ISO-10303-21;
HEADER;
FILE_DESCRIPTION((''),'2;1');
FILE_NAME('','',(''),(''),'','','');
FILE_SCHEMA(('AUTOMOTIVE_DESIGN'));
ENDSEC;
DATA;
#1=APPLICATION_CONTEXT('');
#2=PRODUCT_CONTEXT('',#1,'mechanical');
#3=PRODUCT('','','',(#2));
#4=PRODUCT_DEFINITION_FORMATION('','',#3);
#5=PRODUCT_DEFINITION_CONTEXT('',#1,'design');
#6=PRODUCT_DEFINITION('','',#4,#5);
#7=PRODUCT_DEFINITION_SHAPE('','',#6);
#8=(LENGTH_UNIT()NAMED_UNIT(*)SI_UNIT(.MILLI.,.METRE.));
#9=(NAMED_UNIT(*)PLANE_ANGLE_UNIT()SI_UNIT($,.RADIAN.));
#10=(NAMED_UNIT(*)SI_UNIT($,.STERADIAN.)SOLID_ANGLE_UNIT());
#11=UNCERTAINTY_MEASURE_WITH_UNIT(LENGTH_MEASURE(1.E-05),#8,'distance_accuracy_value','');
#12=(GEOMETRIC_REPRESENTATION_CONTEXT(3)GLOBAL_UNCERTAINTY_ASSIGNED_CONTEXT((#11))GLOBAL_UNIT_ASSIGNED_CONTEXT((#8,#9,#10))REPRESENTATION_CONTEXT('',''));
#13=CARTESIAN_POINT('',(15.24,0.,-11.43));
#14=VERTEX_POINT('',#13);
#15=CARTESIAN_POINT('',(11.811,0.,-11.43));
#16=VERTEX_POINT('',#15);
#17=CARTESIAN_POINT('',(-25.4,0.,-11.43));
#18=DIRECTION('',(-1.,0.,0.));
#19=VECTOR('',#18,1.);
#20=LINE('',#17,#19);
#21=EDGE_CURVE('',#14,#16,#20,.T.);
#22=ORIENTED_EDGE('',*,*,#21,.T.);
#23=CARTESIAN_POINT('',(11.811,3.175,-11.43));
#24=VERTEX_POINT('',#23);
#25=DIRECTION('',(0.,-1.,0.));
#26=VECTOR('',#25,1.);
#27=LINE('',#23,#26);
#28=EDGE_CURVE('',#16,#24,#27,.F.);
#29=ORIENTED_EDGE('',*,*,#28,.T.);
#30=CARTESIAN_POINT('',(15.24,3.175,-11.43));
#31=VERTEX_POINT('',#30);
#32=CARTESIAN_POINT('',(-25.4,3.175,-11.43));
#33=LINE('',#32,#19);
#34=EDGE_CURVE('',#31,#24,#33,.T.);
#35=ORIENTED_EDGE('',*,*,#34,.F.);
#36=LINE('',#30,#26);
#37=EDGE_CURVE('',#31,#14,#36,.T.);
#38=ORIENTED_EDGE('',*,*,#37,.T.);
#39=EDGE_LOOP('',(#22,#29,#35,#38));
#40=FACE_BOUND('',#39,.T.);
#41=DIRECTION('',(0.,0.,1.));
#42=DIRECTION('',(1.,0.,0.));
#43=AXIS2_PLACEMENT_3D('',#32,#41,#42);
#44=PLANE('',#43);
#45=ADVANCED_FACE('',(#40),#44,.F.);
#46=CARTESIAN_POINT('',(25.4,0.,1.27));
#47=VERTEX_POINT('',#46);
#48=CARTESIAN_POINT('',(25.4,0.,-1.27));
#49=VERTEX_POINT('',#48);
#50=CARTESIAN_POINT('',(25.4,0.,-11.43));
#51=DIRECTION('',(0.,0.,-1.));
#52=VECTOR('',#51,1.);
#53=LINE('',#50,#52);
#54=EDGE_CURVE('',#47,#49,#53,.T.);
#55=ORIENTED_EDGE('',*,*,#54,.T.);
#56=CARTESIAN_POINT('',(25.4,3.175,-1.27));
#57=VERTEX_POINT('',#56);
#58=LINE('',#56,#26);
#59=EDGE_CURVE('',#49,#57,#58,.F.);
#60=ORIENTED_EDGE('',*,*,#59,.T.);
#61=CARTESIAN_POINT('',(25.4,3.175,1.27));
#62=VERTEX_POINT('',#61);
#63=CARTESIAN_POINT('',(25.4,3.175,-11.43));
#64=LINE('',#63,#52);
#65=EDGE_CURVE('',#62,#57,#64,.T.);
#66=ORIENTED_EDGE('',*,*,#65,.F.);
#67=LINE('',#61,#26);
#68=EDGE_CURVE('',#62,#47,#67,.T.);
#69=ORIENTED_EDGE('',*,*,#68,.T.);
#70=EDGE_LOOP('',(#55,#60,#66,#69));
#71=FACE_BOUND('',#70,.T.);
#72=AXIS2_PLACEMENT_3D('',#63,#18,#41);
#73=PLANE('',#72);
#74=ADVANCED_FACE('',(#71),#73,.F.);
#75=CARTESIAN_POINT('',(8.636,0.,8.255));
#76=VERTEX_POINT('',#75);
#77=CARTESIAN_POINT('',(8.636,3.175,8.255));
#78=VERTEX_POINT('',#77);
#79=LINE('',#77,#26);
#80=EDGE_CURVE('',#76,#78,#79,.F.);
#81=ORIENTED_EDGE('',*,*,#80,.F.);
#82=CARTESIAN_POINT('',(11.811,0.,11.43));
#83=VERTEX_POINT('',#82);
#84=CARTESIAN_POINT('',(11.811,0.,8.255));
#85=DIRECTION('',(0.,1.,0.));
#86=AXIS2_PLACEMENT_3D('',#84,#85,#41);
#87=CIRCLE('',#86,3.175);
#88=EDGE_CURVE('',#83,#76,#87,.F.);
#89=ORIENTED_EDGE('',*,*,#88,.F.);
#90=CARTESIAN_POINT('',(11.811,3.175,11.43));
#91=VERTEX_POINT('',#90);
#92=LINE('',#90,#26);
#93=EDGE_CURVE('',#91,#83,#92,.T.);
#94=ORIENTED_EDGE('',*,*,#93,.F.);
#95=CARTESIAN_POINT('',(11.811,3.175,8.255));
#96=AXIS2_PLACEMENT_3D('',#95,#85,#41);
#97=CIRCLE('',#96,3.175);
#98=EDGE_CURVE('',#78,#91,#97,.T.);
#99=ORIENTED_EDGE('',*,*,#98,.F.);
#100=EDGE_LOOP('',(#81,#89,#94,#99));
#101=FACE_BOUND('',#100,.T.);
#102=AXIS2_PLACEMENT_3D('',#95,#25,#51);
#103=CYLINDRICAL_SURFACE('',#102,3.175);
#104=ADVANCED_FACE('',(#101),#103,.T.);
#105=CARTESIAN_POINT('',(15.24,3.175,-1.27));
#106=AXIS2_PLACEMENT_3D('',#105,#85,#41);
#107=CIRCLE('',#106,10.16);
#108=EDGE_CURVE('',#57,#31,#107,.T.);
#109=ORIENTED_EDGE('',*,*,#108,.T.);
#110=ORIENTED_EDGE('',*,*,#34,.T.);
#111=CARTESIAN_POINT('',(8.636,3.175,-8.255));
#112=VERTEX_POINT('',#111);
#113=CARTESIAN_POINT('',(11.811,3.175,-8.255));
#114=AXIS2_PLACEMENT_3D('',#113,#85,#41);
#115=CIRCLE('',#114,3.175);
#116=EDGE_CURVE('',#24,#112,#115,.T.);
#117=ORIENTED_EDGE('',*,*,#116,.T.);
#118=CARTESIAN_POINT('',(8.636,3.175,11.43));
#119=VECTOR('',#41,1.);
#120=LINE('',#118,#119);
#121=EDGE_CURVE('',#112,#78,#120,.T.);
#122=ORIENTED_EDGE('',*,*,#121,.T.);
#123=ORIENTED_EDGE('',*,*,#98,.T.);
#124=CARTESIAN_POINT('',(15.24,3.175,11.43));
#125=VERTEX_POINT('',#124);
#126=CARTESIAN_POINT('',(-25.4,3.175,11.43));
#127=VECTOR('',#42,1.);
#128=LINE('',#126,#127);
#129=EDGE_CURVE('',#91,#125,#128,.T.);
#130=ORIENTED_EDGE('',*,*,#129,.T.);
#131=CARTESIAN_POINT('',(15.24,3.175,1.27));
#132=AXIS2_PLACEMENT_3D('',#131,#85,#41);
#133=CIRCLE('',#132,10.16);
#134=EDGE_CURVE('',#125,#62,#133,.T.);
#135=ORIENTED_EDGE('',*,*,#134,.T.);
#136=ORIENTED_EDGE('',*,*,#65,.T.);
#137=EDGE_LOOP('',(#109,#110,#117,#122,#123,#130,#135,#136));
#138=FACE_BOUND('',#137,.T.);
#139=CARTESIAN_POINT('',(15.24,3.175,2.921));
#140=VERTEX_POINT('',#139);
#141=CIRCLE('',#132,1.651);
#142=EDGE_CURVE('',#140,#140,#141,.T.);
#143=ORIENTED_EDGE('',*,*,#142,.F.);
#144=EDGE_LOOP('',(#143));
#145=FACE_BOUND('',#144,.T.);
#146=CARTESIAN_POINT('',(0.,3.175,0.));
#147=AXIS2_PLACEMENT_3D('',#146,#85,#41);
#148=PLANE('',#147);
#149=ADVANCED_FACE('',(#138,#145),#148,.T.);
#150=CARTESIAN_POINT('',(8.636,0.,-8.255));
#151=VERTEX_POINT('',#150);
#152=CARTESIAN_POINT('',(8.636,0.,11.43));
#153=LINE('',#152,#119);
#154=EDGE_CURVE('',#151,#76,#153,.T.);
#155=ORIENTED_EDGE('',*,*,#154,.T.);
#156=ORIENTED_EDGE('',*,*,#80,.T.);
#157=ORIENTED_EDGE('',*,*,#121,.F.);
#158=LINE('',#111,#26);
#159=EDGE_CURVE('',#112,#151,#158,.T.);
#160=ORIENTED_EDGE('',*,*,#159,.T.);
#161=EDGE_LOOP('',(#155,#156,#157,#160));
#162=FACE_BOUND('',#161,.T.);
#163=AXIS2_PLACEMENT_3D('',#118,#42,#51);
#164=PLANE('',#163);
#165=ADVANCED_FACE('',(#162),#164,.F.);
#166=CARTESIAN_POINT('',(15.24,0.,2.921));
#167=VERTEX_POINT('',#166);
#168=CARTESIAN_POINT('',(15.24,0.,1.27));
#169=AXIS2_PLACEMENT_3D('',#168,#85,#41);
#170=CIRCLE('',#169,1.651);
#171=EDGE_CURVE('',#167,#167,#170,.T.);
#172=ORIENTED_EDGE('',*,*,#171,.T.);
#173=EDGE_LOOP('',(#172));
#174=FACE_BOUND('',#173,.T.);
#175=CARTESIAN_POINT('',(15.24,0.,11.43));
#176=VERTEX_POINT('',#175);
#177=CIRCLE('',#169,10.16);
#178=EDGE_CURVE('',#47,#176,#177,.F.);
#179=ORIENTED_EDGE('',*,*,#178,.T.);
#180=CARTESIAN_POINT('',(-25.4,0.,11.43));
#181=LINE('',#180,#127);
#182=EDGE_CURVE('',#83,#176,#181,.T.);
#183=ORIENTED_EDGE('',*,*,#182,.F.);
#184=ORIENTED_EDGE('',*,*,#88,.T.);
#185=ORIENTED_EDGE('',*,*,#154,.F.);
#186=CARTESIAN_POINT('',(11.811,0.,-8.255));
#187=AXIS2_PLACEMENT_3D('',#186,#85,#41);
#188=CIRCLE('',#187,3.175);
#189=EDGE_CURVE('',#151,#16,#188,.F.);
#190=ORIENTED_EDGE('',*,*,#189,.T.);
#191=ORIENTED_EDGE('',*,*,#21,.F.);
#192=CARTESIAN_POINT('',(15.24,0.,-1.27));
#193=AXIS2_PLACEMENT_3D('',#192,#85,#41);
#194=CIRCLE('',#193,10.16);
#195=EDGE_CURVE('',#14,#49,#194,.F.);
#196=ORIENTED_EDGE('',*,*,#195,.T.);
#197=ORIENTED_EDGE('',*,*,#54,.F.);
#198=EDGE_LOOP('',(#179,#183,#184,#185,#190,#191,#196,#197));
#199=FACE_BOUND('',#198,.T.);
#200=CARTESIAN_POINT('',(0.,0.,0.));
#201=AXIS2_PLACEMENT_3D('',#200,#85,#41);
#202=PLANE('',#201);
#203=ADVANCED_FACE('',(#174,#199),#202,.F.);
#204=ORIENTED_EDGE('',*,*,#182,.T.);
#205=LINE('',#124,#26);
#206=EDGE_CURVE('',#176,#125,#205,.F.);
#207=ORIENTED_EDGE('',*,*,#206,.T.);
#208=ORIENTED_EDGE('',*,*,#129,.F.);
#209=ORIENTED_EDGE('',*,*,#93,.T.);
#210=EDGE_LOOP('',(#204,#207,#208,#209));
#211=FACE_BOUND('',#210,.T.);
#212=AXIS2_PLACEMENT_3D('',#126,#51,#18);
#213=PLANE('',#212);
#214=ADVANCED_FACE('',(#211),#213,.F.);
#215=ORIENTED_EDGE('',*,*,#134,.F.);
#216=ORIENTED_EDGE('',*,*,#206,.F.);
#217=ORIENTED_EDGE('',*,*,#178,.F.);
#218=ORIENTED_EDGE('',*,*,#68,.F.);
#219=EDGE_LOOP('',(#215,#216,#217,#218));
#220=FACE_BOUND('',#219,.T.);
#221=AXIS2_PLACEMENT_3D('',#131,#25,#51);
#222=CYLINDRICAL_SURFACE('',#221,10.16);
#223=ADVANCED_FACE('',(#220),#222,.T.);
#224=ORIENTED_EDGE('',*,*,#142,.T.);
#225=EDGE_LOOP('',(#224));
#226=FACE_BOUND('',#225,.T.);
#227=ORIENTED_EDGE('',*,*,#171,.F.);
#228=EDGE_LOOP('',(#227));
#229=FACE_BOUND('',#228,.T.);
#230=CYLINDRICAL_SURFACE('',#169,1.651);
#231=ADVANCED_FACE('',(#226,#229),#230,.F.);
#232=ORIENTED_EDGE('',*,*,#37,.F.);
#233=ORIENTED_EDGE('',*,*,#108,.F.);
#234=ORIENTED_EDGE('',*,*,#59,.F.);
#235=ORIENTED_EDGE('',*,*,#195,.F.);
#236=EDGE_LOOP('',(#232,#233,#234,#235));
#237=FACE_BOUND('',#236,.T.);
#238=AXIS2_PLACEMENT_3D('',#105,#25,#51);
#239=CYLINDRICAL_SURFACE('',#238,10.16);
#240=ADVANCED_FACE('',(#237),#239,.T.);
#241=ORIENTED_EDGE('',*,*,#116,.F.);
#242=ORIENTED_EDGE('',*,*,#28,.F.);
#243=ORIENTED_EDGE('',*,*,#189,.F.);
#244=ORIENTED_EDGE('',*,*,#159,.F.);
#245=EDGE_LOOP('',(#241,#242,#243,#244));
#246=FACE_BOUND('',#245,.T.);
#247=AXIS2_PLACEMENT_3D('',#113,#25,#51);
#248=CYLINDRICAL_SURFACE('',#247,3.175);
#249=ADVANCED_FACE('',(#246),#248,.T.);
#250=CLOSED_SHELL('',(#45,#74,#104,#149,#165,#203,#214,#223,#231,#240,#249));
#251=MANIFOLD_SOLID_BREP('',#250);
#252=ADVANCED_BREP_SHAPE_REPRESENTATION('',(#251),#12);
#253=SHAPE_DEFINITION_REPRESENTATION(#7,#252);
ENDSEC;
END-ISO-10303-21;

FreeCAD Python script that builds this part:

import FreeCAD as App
import Part
import Sketcher

V = App.Vector
Q = App.Units.Quantity


def edges_at(feature, points):
    """Names of the edges that pass closest to the given points."""
    edges = feature.Shape.Edges
    near = lambda p: min(range(len(edges)), key=lambda i: edges[i].distToShape(Part.Vertex(*p))[0])
    return sorted({f"Edge{near(p) + 1}" for p in points})


def add_polygon(sketch, points):
    """Adds a closed chain of lines whose ends are joined by coincident constraints."""
    first, n = sketch.GeometryCount, len(points)
    for a, b in zip(points, points[1:] + points[:1]):
        sketch.addGeometry(Part.LineSegment(App.Vector(*a, 0), App.Vector(*b, 0)), False)
    for i in range(n):
        sketch.addConstraint(Sketcher.Constraint("Coincident", first + i, 2, first + (i + 1) % n, 1))

doc = App.newDocument("Part")
body = doc.addObject("PartDesign::Body", "Body")

# Sketch on XZ plane
sketch1 = body.newObject("Sketcher::SketchObject", "Sketch")
sketch1.AttachmentSupport = (doc.getObject("XZ_Plane"), [""])
sketch1.MapMode = "FlatFace"
add_polygon(sketch1, [(-25, -11), (-25, 11), (25, 11), (25, -11)])  # lines 0-3
sketch1.addConstraint([
    Sketcher.Constraint("Vertical", 0),
    Sketcher.Constraint("Horizontal", 1),
    Sketcher.Constraint("Vertical", 2),
    Sketcher.Constraint("Horizontal", 3),
    Sketcher.Constraint("Symmetric", 0, 2, 2, 2, -1, 1),
    Sketcher.Constraint("DistanceX", 1, 1, 1, 2, Q("2 in")),
    Sketcher.Constraint("DistanceY", 0, 1, 0, 2, Q("0.9 in")),
])
pad1 = body.newObject("PartDesign::Pad", "Pad")
pad1.Profile = sketch1
pad1.Length = Q("0.125 in")
pad1.Reversed = True
doc.recompute()

fillet = body.newObject("PartDesign::Fillet", "Fillet")
fillet.Base = (pad1, edges_at(pad1, [(25.4, 1.587, 11.43), (-25.4, 1.587, 11.43)]))
fillet.Radius = Q("0.4 in")

# Sketch on XZ plane
sketch2 = body.newObject("Sketcher::SketchObject", "Sketch001")
sketch2.AttachmentSupport = (doc.getObject("XZ_Plane"), [""])
sketch2.MapMode = "FlatFace"
sketch2.AttachmentOffset = App.Placement(V(0, 0, -0.125 * 25.4), App.Rotation())
sketch2.addGeometry([
    Part.Circle(V(15.2, 1.3, 0), V(0, 0, 1), 1.7),
    Part.Circle(V(-3.8, 1.3, 0), V(0, 0, 1), 1.7),
], False)
sketch2.addConstraint([
    Sketcher.Constraint("Equal", 0, 1),
    Sketcher.Constraint("Horizontal", 0, 3, 1, 3),
    Sketcher.Constraint("Diameter", 0, Q("0.13 in")),
    Sketcher.Constraint("DistanceX", -1, 1, 0, 3, Q("0.6 in")),
    Sketcher.Constraint("DistanceY", -1, 1, 0, 3, Q("0.05 in")),
    Sketcher.Constraint("DistanceX", 1, 3, -1, 1, Q("0.15 in")),
])
pocket1 = body.newObject("PartDesign::Pocket", "Pocket")
pocket1.Profile = sketch2
pocket1.Type = "ThroughAll"
pocket1.Reversed = True
doc.recompute()

fillet2 = body.newObject("PartDesign::Fillet", "Fillet001")
fillet2.Base = (pocket1, edges_at(pocket1, [(-25.4, 1.587, -11.43), (25.4, 1.587, -11.43)]))
fillet2.Radius = Q("0.4 in")

# Sketch on XZ plane
sketch3 = body.newObject("Sketcher::SketchObject", "Sketch002")
sketch3.AttachmentSupport = (doc.getObject("XZ_Plane"), [""])
sketch3.MapMode = "FlatFace"
add_polygon(sketch3, [(9, -11), (9, 11), (-25, 11), (-25, -11)])  # lines 0-3
sketch3.addConstraint([
    Sketcher.Constraint("Vertical", 0),
    Sketcher.Constraint("Horizontal", 1),
    Sketcher.Constraint("Vertical", 2),
    Sketcher.Constraint("Horizontal", 3),
    Sketcher.Constraint("DistanceY", 0, 1, 0, 2, Q("0.9 in")),
    Sketcher.Constraint("DistanceX", 1, 2, -1, 1, Q("1 in")),
    Sketcher.Constraint("DistanceX", 1, 2, 1, 1, Q("1.34 in")),
    Sketcher.Constraint("DistanceY", -1, 1, 0, 2, Q("0.45 in")),
])
pocket2 = body.newObject("PartDesign::Pocket", "Pocket001")
pocket2.Profile = sketch3
pocket2.Type = "ThroughAll"
doc.recompute()

fillet3 = body.newObject("PartDesign::Fillet", "Fillet002")
fillet3.Base = (pocket2, edges_at(pocket2, [(8.636, 1.587, -11.43), (8.636, 1.587, 11.43)]))
fillet3.Radius = Q("0.125 in")

doc.recompute()
